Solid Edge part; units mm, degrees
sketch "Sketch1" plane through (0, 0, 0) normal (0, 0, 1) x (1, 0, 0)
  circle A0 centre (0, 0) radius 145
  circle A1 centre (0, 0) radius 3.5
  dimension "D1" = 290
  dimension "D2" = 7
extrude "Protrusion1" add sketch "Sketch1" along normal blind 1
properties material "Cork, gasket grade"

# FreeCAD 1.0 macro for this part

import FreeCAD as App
import Part
import Sketcher
from FreeCAD import Vector
Q = App.Units.Quantity

doc = App.newDocument("Part")
params = doc.addObject("Spreadsheet::Sheet", "Params")
for row, (alias, value) in enumerate([
    ("sketch1_diameter", "290 mm"),
    ("sketch1_diameter2", "7 mm"),
    ("pad1_length", "1 mm"),
], start=1):
    params.set(f"A{row}", alias)
    params.set(f"B{row}", "=" + value)
    params.setAlias(f"B{row}", alias)

body = doc.addObject("PartDesign::Body", "Body")

# Sketch on XY plane
sketch1 = body.newObject("Sketcher::SketchObject", "Sketch")
sketch1.AttachmentSupport = (doc.getObject("XY_Plane"), [""])
sketch1.MapMode = "FlatFace"
sketch1.addGeometry(Part.Circle(Vector(0, 0, 0), Vector(0, 0, 1), 145), False)
sketch1.addGeometry(Part.Circle(Vector(0, 0, 0), Vector(0, 0, 1), 3.5), False)
sketch1.addConstraint(Sketcher.Constraint("Coincident", 0, 3, -1, 1))
sketch1.addConstraint(Sketcher.Constraint("Coincident", 1, 3, -1, 1))
sketch1.addConstraint(Sketcher.Constraint("Diameter", 0, Q("290 mm")))
sketch1.addConstraint(Sketcher.Constraint("Diameter", 1, Q("7 mm")))
sketch1.setExpression("Constraints[2]", "Params.sketch1_diameter")
sketch1.setExpression("Constraints[3]", "Params.sketch1_diameter2")
pad1 = body.newObject("PartDesign::Pad", "Pad")
pad1.Profile = sketch1
pad1.setExpression("Length", "Params.pad1_length")

doc.recompute()
